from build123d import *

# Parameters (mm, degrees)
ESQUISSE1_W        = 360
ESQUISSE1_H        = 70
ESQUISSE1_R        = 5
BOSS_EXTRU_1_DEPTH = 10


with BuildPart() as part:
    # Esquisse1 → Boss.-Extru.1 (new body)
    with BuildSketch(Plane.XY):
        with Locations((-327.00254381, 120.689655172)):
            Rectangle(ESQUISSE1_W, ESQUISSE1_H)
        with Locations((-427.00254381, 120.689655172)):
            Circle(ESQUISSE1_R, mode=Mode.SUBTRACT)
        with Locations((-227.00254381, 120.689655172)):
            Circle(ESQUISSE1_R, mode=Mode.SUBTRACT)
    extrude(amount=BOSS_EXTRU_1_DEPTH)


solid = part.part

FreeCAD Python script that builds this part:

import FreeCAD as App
import Part
import Sketcher

doc = App.newDocument("Part")
body = doc.addObject("PartDesign::Body", "Body")

sketch1 = body.newObject("Sketcher::SketchObject", "Sketch")
sketch1.AttachmentSupport = (doc.getObject("XY_Plane"), [""])
sketch1.MapMode = "FlatFace"
sketch1.addGeometry([
    Part.LineSegment(App.Vector(-507.002544, 155.689655, 0), App.Vector(-507.002544, 85.689655, 0)),
    Part.LineSegment(App.Vector(-507.002544, 85.689655, 0), App.Vector(-147.002544, 85.689655, 0)),
    Part.LineSegment(App.Vector(-147.002544, 85.689655, 0), App.Vector(-147.002544, 155.689655, 0)),
    Part.LineSegment(App.Vector(-147.002544, 155.689655, 0), App.Vector(-507.002544, 155.689655, 0)),
    Part.Circle(App.Vector(-427.002544, 120.689655, 0), App.Vector(0, 0, 1), 5),
    Part.Circle(App.Vector(-227.002544, 120.689655, 0), App.Vector(0, 0, 1), 5),
], False)
sketch1.addConstraint([
    Sketcher.Constraint("Coincident", 0, 2, 1, 1),
    Sketcher.Constraint("Coincident", 1, 2, 2, 1),
    Sketcher.Constraint("Coincident", 2, 2, 3, 1),
    Sketcher.Constraint("Coincident", 3, 2, 0, 1),
    Sketcher.Constraint("Vertical", 0),
    Sketcher.Constraint("Horizontal", 1),
    Sketcher.Constraint("Vertical", 2),
    Sketcher.Constraint("Horizontal", 3),
    Sketcher.Constraint("Equal", 4, 5),
    Sketcher.Constraint("Horizontal", 4, 3, 5, 3),
    Sketcher.Constraint("Diameter", 4, 10.0),
    Sketcher.Constraint("DistanceX", 1, 1, 1, 2, 360.0),
    Sketcher.Constraint("DistanceY", 0, 2, 0, 1, 70.0),
    Sketcher.Constraint("DistanceX", 4, 3, 5, 3, 200.0),
    Sketcher.Constraint("DistanceX", 0, 2, 4, 3, 80.0),
    Sketcher.Constraint("DistanceY", 0, 2, 4, 3, 35.0),
    Sketcher.Constraint("DistanceX", 4, 3, -1, 1, 427.002544),
    Sketcher.Constraint("DistanceY", -1, 1, 4, 3, 120.689655),
])
pad1 = body.newObject("PartDesign::Pad", "Pad")
pad1.Profile = sketch1
pad1.Length = 10

doc.recompute()
